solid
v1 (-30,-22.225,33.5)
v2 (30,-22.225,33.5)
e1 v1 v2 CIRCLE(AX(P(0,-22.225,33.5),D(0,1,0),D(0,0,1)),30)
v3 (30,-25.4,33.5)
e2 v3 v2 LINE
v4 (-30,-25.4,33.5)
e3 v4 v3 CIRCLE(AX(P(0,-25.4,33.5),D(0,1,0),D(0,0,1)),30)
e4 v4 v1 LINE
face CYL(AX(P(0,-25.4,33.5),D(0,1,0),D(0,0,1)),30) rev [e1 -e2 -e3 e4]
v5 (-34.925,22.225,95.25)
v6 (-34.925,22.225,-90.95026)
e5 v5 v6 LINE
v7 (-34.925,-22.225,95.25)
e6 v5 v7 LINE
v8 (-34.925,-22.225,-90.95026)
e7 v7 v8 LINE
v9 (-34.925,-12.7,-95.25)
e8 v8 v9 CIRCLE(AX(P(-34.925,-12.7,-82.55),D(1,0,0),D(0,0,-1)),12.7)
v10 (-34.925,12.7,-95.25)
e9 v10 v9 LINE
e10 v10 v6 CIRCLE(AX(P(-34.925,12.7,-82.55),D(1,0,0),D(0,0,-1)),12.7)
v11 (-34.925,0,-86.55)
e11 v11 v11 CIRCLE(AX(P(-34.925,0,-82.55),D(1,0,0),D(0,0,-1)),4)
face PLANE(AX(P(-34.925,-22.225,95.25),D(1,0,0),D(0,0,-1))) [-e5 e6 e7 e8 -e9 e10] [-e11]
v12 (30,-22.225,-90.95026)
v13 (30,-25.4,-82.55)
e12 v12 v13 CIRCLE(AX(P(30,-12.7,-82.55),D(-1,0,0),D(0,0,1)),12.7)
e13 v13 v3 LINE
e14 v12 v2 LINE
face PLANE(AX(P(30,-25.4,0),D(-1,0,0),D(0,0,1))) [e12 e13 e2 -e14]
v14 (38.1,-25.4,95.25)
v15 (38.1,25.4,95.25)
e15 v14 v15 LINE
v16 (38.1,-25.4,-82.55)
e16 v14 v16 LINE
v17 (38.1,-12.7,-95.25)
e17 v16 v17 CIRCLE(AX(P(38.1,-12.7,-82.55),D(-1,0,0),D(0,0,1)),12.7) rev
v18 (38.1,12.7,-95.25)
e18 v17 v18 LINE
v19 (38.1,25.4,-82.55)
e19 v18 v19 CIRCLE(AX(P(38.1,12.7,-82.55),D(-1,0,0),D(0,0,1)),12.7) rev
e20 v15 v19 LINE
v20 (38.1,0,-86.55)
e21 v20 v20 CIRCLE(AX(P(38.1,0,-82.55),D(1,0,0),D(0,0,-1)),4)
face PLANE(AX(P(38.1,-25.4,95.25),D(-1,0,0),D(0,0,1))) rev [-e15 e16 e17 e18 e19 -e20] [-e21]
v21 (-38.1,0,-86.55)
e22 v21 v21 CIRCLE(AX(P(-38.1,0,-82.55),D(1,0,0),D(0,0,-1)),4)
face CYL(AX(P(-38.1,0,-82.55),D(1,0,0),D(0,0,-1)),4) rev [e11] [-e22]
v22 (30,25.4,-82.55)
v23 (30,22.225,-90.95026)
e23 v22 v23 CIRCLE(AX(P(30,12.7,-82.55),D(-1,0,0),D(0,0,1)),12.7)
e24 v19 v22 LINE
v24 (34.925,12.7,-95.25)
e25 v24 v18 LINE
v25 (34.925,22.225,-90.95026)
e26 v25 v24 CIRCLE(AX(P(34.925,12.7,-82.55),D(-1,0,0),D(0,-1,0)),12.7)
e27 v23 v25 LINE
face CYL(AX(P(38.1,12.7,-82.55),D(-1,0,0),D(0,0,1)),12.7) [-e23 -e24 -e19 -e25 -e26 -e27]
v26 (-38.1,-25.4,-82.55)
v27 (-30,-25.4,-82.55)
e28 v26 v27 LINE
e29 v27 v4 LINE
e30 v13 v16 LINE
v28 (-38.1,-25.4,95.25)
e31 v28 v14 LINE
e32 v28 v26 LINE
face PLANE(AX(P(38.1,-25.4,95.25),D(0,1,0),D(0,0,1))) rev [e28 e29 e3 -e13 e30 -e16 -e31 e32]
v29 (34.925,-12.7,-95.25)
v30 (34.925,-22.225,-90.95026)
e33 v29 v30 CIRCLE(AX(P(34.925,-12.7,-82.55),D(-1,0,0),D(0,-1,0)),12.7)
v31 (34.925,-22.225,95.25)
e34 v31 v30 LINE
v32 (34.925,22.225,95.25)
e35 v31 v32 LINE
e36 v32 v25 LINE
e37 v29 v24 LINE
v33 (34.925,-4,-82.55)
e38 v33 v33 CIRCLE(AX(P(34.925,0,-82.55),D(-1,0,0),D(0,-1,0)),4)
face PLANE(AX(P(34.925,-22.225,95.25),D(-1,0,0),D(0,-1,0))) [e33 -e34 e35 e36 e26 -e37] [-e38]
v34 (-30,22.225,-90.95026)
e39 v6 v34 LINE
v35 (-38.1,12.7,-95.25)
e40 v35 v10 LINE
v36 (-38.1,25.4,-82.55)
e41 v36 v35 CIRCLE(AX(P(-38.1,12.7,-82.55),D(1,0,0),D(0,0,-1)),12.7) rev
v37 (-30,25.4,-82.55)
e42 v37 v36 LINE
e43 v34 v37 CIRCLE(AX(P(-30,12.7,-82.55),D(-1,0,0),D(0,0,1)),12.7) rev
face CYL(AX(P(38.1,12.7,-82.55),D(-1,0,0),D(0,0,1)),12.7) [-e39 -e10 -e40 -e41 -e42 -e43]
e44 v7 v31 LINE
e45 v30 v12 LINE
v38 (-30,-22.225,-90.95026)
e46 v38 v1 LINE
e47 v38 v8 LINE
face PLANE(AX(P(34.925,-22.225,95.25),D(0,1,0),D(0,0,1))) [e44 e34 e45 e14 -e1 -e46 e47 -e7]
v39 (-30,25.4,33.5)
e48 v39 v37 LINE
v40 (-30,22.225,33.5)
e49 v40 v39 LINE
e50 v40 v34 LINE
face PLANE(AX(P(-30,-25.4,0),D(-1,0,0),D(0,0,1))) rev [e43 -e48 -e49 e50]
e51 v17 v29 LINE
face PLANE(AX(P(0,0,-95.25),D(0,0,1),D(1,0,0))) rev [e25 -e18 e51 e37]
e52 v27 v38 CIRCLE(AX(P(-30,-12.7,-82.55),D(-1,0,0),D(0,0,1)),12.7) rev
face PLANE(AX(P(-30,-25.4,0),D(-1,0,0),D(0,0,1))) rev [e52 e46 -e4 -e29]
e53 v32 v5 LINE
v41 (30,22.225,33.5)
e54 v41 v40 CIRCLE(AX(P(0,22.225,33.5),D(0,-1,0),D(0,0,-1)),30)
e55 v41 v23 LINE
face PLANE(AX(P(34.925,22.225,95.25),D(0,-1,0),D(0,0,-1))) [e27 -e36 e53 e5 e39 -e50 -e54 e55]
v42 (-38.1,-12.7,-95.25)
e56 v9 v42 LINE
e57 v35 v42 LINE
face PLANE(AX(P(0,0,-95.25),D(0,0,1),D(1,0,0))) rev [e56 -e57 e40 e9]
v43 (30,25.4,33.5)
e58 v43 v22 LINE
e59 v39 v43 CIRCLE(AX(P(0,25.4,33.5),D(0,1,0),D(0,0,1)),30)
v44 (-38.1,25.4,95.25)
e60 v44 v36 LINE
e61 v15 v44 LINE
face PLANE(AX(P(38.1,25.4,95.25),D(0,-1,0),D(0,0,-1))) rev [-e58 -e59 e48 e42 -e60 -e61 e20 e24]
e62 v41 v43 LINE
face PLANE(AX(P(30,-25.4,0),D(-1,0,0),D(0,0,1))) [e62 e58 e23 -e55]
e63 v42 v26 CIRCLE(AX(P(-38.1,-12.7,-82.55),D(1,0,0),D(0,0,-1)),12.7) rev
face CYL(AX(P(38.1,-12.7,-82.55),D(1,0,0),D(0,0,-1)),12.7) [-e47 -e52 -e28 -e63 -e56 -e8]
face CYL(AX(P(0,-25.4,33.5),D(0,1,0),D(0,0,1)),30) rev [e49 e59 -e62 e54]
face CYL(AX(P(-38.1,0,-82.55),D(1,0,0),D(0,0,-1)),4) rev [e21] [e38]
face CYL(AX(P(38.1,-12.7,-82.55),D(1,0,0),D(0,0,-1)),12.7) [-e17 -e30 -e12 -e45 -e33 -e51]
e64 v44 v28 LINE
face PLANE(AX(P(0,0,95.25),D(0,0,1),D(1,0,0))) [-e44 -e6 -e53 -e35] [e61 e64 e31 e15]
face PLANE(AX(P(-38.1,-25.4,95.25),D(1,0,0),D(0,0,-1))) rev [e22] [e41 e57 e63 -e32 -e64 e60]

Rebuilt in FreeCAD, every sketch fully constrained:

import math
import FreeCAD as App
import Part
import Sketcher

V = App.Vector
Q = App.Units.Quantity


def edges_at(feature, points):
    """Names of the edges that pass closest to the given points."""
    edges = feature.Shape.Edges
    near = lambda p: min(range(len(edges)), key=lambda i: edges[i].distToShape(Part.Vertex(*p))[0])
    return sorted({f"Edge{near(p) + 1}" for p in points})

doc = App.newDocument("Part")
body = doc.addObject("PartDesign::Body", "Body")

# Sketch on XY plane
sketch1 = body.newObject("Sketcher::SketchObject", "Sketch")
sketch1.AttachmentSupport = (doc.getObject("XY_Plane"), [""])
sketch1.MapMode = "FlatFace"
sketch1.addGeometry(Part.LineSegment(V(-38, 25, 0), V(-38, -25, 0)), False)
sketch1.addGeometry(Part.LineSegment(V(-38, -25, 0), V(38, -25, 0)), False)
sketch1.addGeometry(Part.LineSegment(V(38, -25, 0), V(38, 25, 0)), False)
sketch1.addGeometry(Part.LineSegment(V(38, 25, 0), V(-38, 25, 0)), False)
sketch1.addGeometry(Part.LineSegment(V(35, -22, 0), V(-35, -22, 0)), False)
sketch1.addGeometry(Part.LineSegment(V(-35, -22, 0), V(-35, 22, 0)), False)
sketch1.addGeometry(Part.LineSegment(V(-35, 22, 0), V(35, 22, 0)), False)
sketch1.addGeometry(Part.LineSegment(V(35, 22, 0), V(35, -22, 0)), False)
sketch1.addConstraint(Sketcher.Constraint("Coincident", 0, 2, 1, 1))
sketch1.addConstraint(Sketcher.Constraint("Coincident", 1, 2, 2, 1))
sketch1.addConstraint(Sketcher.Constraint("Coincident", 2, 2, 3, 1))
sketch1.addConstraint(Sketcher.Constraint("Coincident", 3, 2, 0, 1))
sketch1.addConstraint(Sketcher.Constraint("Coincident", 4, 2, 5, 1))
sketch1.addConstraint(Sketcher.Constraint("Coincident", 5, 2, 6, 1))
sketch1.addConstraint(Sketcher.Constraint("Coincident", 6, 2, 7, 1))
sketch1.addConstraint(Sketcher.Constraint("Coincident", 7, 2, 4, 1))
sketch1.addConstraint(Sketcher.Constraint("Vertical", 0))
sketch1.addConstraint(Sketcher.Constraint("Horizontal", 1))
sketch1.addConstraint(Sketcher.Constraint("Vertical", 2))
sketch1.addConstraint(Sketcher.Constraint("Horizontal", 3))
sketch1.addConstraint(Sketcher.Constraint("Horizontal", 4))
sketch1.addConstraint(Sketcher.Constraint("Vertical", 5))
sketch1.addConstraint(Sketcher.Constraint("Horizontal", 6))
sketch1.addConstraint(Sketcher.Constraint("Vertical", 7))
sketch1.addConstraint(Sketcher.Constraint("Symmetric", 0, 2, 2, 2, -1, 1))
sketch1.addConstraint(Sketcher.Constraint("Symmetric", 4, 2, 6, 2, -1, 1))
sketch1.addConstraint(Sketcher.Constraint("DistanceX", 1, 1, 1, 2, Q("3 in")))
sketch1.addConstraint(Sketcher.Constraint("DistanceY", 0, 2, 0, 1, Q("2 in")))
sketch1.addConstraint(Sketcher.Constraint("DistanceX", 4, 2, 4, 1, Q("2.75 in")))
sketch1.addConstraint(Sketcher.Constraint("DistanceY", 5, 1, 5, 2, Q("1.75 in")))
pad1 = body.newObject("PartDesign::Pad", "Pad")
pad1.Profile = sketch1
pad1.Type = "TwoLengths"
pad1.Length = Q("3.75 in")
pad1.Length2 = Q("3.75 in")

# Sketch on XZ plane
sketch2 = body.newObject("Sketcher::SketchObject", "Sketch001")
sketch2.AttachmentSupport = (doc.getObject("XZ_Plane"), [""])
sketch2.MapMode = "FlatFace"
sketch2.AttachmentOffset = App.Placement(V(0, 0, -1 * 25.4), App.Rotation())
sketch2.addGeometry(Part.LineSegment(V(30, -95, 0), V(-30, -95, 0)), False)
sketch2.addGeometry(Part.LineSegment(V(-30, -95, 0), V(-30, 34, 0)), False)
sketch2.addGeometry(Part.ArcOfCircle(Part.Circle(V(0, 34, 0), V(0, 0, 1), 30), math.radians(0), math.radians(180)), False)
sketch2.addGeometry(Part.LineSegment(V(30, 34, 0), V(30, -95, 0)), False)
sketch2.addConstraint(Sketcher.Constraint("Coincident", 0, 2, 1, 1))
sketch2.addConstraint(Sketcher.Constraint("Tangent", 1, 2, 2, 2))
sketch2.addConstraint(Sketcher.Constraint("Tangent", 2, 1, 3, 1))
sketch2.addConstraint(Sketcher.Constraint("Coincident", 3, 2, 0, 1))
sketch2.addConstraint(Sketcher.Constraint("Horizontal", 0))
sketch2.addConstraint(Sketcher.Constraint("Vertical", 1))
sketch2.addConstraint(Sketcher.Constraint("Vertical", 3))
sketch2.addConstraint(Sketcher.Constraint("PointOnObject", 2, 3, -2))
sketch2.addConstraint(Sketcher.Constraint("DistanceY", 0, 2, -1, 1, Q("3.75 in")))
sketch2.addConstraint(Sketcher.Constraint("Radius", 2, Q("30 mm")))
sketch2.addConstraint(Sketcher.Constraint("DistanceY", 1, 1, 1, 2, Q("128.75 mm")))
pocket1 = body.newObject("PartDesign::Pocket", "Pocket")
pocket1.Profile = sketch2
pocket1.Type = "ThroughAll"
pocket1.Midplane = True

# Sketch on YZ plane
sketch3 = body.newObject("Sketcher::SketchObject", "Sketch002")
sketch3.AttachmentSupport = (doc.getObject("YZ_Plane"), [""])
sketch3.MapMode = "FlatFace"
sketch3.AttachmentOffset = App.Placement(V(0, 0, 1.5 * 25.4), App.Rotation())
sketch3.addGeometry(Part.Circle(V(0, -82.5, 0), V(0, 0, 1), 4), False)
sketch3.addConstraint(Sketcher.Constraint("PointOnObject", 0, 3, -2))
sketch3.addConstraint(Sketcher.Constraint("Diameter", 0, Q("8 mm")))
sketch3.addConstraint(Sketcher.Constraint("DistanceY", 0, 3, -1, 1, Q("3.25 in")))
pocket2 = body.newObject("PartDesign::Pocket", "Pocket001")
pocket2.Profile = sketch3
pocket2.Type = "ThroughAll"
doc.recompute()

fillet = body.newObject("PartDesign::Fillet", "Fillet")
fillet.Base = (pocket2, edges_at(pocket2, [
    (-34.05, -25.4, -95.25),
    (-34.05, 25.4, -95.25),
    (34.05, -25.4, -95.25),
    (34.05, 25.4, -95.25),
]))
fillet.Radius = Q("0.5 in")

doc.recompute()
